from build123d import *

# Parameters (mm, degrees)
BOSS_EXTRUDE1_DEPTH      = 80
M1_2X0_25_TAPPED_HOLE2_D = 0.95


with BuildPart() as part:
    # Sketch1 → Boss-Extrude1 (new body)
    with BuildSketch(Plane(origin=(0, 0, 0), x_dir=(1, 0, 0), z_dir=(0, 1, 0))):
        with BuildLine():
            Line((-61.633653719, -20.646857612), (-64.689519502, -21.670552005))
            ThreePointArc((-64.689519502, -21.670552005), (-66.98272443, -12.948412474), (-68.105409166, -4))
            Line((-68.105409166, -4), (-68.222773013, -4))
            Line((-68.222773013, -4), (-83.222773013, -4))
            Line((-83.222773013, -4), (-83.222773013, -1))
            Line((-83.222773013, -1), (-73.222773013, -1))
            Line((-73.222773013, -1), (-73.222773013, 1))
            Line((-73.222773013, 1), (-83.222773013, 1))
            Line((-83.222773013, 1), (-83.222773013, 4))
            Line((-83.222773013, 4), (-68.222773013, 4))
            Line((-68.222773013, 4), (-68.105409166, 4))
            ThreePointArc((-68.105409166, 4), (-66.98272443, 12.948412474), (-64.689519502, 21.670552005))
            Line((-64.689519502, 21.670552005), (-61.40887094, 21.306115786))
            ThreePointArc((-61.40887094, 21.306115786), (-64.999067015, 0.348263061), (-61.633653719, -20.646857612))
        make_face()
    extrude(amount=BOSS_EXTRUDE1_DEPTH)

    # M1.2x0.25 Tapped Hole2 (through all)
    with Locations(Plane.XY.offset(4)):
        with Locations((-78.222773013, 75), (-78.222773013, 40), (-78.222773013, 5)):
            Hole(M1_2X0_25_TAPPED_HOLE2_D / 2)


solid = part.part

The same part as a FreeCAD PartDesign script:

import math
import FreeCAD as App
import Part
import Sketcher
from FreeCAD import Vector

doc = App.newDocument("Part")
body = doc.addObject("PartDesign::Body", "Body")

# Sketch on XZ plane
sketch1 = body.newObject("Sketcher::SketchObject", "Sketch")
sketch1.AttachmentSupport = (doc.getObject("XZ_Plane"), [""])
sketch1.MapMode = "FlatFace"
sketch1.addGeometry([
    Part.LineSegment(Vector(-64.7, 21.7, 0), Vector(-61.6, 20.6, 0)),  # 0
    Part.ArcOfCircle(Part.Circle(Vector(0, 0, 0), Vector(0, 0, 1), 65), math.radians(161), math.radians(199)),  # 1
    Part.LineSegment(Vector(-61.4, -21.3, 0), Vector(-64.7, -21.7, 0)),  # 2
    Part.ArcOfCircle(Part.Circle(Vector(0, 0, 0), Vector(0, 0, 1), 68.2), math.radians(-176.64), math.radians(-161.48)),  # 3
    Part.LineSegment(Vector(-68.1, -4, 0), Vector(-83.2, -4, 0)),  # 4
    Part.LineSegment(Vector(-83.2, -4, 0), Vector(-83.2, -1, 0)),  # 5
    Part.LineSegment(Vector(-83.2, -1, 0), Vector(-73.2, -1, 0)),  # 6
    Part.LineSegment(Vector(-73.2, -1, 0), Vector(-73.2, 1, 0)),  # 7
    Part.LineSegment(Vector(-73.2, 1, 0), Vector(-83.2, 1, 0)),  # 8
    Part.LineSegment(Vector(-83.2, 1, 0), Vector(-83.2, 4, 0)),  # 9
    Part.LineSegment(Vector(-83.2, 4, 0), Vector(-68.1, 4, 0)),  # 10
    Part.ArcOfCircle(Part.Circle(Vector(0, 0, 0), Vector(0, 0, 1), 68.2), math.radians(161.48), math.radians(176.64)),  # 11
], False)
sketch1.addConstraint([
    Sketcher.Constraint("Coincident", 0, 2, 1, 1),
    Sketcher.Constraint("Coincident", 1, 2, 2, 1),
    Sketcher.Constraint("Coincident", 2, 2, 3, 2),
    Sketcher.Constraint("Coincident", 3, 1, 4, 1),
    Sketcher.Constraint("Coincident", 4, 2, 5, 1),
    Sketcher.Constraint("Coincident", 5, 2, 6, 1),
    Sketcher.Constraint("Coincident", 6, 2, 7, 1),
    Sketcher.Constraint("Coincident", 7, 2, 8, 1),
    Sketcher.Constraint("Coincident", 8, 2, 9, 1),
    Sketcher.Constraint("Coincident", 9, 2, 10, 1),
    Sketcher.Constraint("Coincident", 10, 2, 11, 2),
    Sketcher.Constraint("Coincident", 11, 1, 0, 1),
    Sketcher.Constraint("Horizontal", 4),
    Sketcher.Constraint("Vertical", 5),
    Sketcher.Constraint("Horizontal", 6),
    Sketcher.Constraint("Vertical", 7),
    Sketcher.Constraint("Horizontal", 8),
    Sketcher.Constraint("Vertical", 9),
    Sketcher.Constraint("Horizontal", 10),
    Sketcher.Constraint("Coincident", 1, 3, -1, 1),
    Sketcher.Constraint("Coincident", 3, 3, -1, 1),
    Sketcher.Constraint("Coincident", 11, 3, -1, 1),
    Sketcher.Constraint("Equal", 3, 11),
    Sketcher.Constraint("Symmetric", 5, 2, 8, 2, -1),
    Sketcher.Constraint("Vertical", 3, 1, 10, 2),
    Sketcher.Constraint("Vertical", 2, 2, 11, 1),
    Sketcher.Constraint("Radius", 1, 65.0),
    Sketcher.Constraint("DistanceX", 6, 1, 6, 2, 10.0),
    Sketcher.Constraint("DistanceY", 5, 1, 5, 2, 3.0),
    Sketcher.Constraint("DistanceY", 7, 1, 7, 2, 2.0),
    Sketcher.Constraint("Radius", 3, 68.222773),
    Sketcher.Constraint("Distance", 2, 3.300828),
    Sketcher.Constraint("DistanceX", 4, 2, 4, 1, 15.117364),
    Sketcher.Constraint("DistanceX", 1, 2, -1, 1, 61.408871),
    Sketcher.Constraint("DistanceY", 2, 2, 0, 2, 42.31741),
])
pad1 = body.newObject("PartDesign::Pad", "Pad")
pad1.Profile = sketch1
pad1.Length = 80
pad1.Reversed = True

# Sketch on XY plane
sketch2 = body.newObject("Sketcher::SketchObject", "Sketch001")
sketch2.AttachmentSupport = (doc.getObject("XY_Plane"), [""])
sketch2.MapMode = "FlatFace"
sketch2.AttachmentOffset = App.Placement(Vector(0, 0, 4), App.Rotation())
sketch2.addGeometry([
    Part.Circle(Vector(-78.22, 75, 0), Vector(0, 0, 1), 0.47),
    Part.Circle(Vector(-78.22, 40, 0), Vector(0, 0, 1), 0.47),
    Part.Circle(Vector(-78.22, 5, 0), Vector(0, 0, 1), 0.47),
], False)
sketch2.addConstraint([
    Sketcher.Constraint("Equal", 0, 1),
    Sketcher.Constraint("Equal", 1, 2),
    Sketcher.Constraint("Vertical", 0, 3, 1, 3),
    Sketcher.Constraint("Vertical", 1, 3, 2, 3),
    Sketcher.Constraint("Diameter", 0, 0.95),
    Sketcher.Constraint("DistanceY", -1, 1, 0, 3, 75.0),
    Sketcher.Constraint("DistanceY", -1, 1, 1, 3, 40.0),
    Sketcher.Constraint("DistanceY", -1, 1, 2, 3, 5.0),
    Sketcher.Constraint("DistanceX", 0, 3, -1, 1, 78.222773),
])
doc.recompute()
hole = body.newObject("PartDesign::Hole", "Hole")
hole.Profile = sketch2
hole.ThreadType = "None"
hole.Diameter = 0.95
hole.DepthType = "ThroughAll"

doc.recompute()
